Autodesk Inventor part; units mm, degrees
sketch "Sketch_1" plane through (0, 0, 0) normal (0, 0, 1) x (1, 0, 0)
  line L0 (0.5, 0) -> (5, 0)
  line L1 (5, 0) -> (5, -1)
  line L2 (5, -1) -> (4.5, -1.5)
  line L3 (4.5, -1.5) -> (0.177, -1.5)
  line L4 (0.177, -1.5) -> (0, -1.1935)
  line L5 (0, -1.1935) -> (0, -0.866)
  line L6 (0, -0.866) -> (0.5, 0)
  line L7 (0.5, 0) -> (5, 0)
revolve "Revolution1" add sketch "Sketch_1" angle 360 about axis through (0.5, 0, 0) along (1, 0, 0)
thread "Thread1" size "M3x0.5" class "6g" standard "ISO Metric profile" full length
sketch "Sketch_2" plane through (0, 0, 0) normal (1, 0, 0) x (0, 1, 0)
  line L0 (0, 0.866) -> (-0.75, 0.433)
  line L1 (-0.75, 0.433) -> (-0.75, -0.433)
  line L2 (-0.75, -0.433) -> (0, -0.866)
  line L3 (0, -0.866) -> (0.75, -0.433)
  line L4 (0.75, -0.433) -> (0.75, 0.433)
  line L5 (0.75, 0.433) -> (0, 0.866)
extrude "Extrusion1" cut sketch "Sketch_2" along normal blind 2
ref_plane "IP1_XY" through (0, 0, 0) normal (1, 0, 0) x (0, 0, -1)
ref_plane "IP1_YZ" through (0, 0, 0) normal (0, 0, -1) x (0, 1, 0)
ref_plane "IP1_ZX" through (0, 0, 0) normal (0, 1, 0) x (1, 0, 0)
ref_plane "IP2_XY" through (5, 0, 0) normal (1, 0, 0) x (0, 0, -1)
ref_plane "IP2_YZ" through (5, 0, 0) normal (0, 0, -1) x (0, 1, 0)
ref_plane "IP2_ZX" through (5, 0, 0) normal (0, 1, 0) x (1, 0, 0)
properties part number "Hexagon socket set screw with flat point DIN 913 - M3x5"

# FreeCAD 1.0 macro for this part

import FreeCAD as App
import Part
import Sketcher

V = App.Vector
Q = App.Units.Quantity


def add_polygon(sketch, points):
    """Adds a closed chain of lines whose ends are joined by coincident constraints."""
    first, n = sketch.GeometryCount, len(points)
    for a, b in zip(points, points[1:] + points[:1]):
        sketch.addGeometry(Part.LineSegment(App.Vector(*a, 0), App.Vector(*b, 0)), False)
    for i in range(n):
        sketch.addConstraint(Sketcher.Constraint("Coincident", first + i, 2, first + (i + 1) % n, 1))

doc = App.newDocument("Part")
body = doc.addObject("PartDesign::Body", "Body")

sketch1 = doc.addObject("Sketcher::SketchObject", "Sketch")
body.addObject(sketch1)
sketch1.AttachmentSupport = (doc.XY_Plane, [""])
sketch1.MapMode = "FlatFace"
add_polygon(sketch1, [(5, 0), (0.5, 0), (0, -0.87), (0, -1.19), (0.18, -1.5), (4.5, -1.5), (5, -1)])
sketch1.addConstraint([
    Sketcher.Constraint("Horizontal", 0),
    Sketcher.Constraint("Vertical", 2),
    Sketcher.Constraint("Horizontal", 4),
    Sketcher.Constraint("Vertical", 6),
    Sketcher.Constraint("PointOnObject", 0, 2, -1),
    Sketcher.Constraint("PointOnObject", 1, 2, -2),
    Sketcher.Constraint("DistanceY", 6, 1, 6, 2, Q("1 mm")),
    Sketcher.Constraint("Angle", 1, Q("-120.0007 deg")),
    Sketcher.Constraint("Angle", 5, Q("45 deg")),
    Sketcher.Constraint("Distance", 1, Q("1 mm")),
    Sketcher.Constraint("DistanceX", 0, 2, 0, 1, Q("4.5 mm")),
    Sketcher.Constraint("DistanceX", 0, 2, 4, 2, Q("4 mm")),
    Sketcher.Constraint("DistanceX", 4, 1, 4, 2, Q("4.323 mm")),
    Sketcher.Constraint("Distance", 3, Q("0.354 mm")),
])
revolution = doc.addObject("PartDesign::Revolution", "Revolution")
body.addObject(revolution)
revolution.Profile = sketch1
revolution.ReferenceAxis = (sketch1, ["H_Axis"])
revolution.Angle = 360

sketch2 = doc.addObject("Sketcher::SketchObject", "Sketch001")
body.addObject(sketch2)
sketch2.AttachmentSupport = (doc.YZ_Plane, [""])
sketch2.MapMode = "FlatFace"
add_polygon(sketch2, [(0.8, 0.4), (0, 0.9), (-0.8, 0.4), (-0.8, -0.4), (0, -0.9), (0.8, -0.4)])
sketch2.addConstraint([
    Sketcher.Constraint("Vertical", 2),
    Sketcher.Constraint("Vertical", 5),
    Sketcher.Constraint("Symmetric", 0, 2, 3, 2, -1, 1),
    Sketcher.Constraint("Symmetric", 1, 2, 4, 2, -1, 1),
    Sketcher.Constraint("PointOnObject", 0, 2, -2),
    Sketcher.Constraint("Parallel", 0, 3),
    Sketcher.Constraint("Horizontal", 2, 2, 4, 2),
    Sketcher.Constraint("Angle", 0, Q("150.0007 deg")),
    Sketcher.Constraint("DistanceX", 2, 2, 4, 2, Q("1.5 mm")),
    Sketcher.Constraint("DistanceY", 2, 2, 2, 1, Q("0.866 mm")),
])
pocket1 = doc.addObject("PartDesign::Pocket", "Pocket")
body.addObject(pocket1)
pocket1.Profile = sketch2
pocket1.Length = 2
pocket1.Reversed = True

doc.recompute()
